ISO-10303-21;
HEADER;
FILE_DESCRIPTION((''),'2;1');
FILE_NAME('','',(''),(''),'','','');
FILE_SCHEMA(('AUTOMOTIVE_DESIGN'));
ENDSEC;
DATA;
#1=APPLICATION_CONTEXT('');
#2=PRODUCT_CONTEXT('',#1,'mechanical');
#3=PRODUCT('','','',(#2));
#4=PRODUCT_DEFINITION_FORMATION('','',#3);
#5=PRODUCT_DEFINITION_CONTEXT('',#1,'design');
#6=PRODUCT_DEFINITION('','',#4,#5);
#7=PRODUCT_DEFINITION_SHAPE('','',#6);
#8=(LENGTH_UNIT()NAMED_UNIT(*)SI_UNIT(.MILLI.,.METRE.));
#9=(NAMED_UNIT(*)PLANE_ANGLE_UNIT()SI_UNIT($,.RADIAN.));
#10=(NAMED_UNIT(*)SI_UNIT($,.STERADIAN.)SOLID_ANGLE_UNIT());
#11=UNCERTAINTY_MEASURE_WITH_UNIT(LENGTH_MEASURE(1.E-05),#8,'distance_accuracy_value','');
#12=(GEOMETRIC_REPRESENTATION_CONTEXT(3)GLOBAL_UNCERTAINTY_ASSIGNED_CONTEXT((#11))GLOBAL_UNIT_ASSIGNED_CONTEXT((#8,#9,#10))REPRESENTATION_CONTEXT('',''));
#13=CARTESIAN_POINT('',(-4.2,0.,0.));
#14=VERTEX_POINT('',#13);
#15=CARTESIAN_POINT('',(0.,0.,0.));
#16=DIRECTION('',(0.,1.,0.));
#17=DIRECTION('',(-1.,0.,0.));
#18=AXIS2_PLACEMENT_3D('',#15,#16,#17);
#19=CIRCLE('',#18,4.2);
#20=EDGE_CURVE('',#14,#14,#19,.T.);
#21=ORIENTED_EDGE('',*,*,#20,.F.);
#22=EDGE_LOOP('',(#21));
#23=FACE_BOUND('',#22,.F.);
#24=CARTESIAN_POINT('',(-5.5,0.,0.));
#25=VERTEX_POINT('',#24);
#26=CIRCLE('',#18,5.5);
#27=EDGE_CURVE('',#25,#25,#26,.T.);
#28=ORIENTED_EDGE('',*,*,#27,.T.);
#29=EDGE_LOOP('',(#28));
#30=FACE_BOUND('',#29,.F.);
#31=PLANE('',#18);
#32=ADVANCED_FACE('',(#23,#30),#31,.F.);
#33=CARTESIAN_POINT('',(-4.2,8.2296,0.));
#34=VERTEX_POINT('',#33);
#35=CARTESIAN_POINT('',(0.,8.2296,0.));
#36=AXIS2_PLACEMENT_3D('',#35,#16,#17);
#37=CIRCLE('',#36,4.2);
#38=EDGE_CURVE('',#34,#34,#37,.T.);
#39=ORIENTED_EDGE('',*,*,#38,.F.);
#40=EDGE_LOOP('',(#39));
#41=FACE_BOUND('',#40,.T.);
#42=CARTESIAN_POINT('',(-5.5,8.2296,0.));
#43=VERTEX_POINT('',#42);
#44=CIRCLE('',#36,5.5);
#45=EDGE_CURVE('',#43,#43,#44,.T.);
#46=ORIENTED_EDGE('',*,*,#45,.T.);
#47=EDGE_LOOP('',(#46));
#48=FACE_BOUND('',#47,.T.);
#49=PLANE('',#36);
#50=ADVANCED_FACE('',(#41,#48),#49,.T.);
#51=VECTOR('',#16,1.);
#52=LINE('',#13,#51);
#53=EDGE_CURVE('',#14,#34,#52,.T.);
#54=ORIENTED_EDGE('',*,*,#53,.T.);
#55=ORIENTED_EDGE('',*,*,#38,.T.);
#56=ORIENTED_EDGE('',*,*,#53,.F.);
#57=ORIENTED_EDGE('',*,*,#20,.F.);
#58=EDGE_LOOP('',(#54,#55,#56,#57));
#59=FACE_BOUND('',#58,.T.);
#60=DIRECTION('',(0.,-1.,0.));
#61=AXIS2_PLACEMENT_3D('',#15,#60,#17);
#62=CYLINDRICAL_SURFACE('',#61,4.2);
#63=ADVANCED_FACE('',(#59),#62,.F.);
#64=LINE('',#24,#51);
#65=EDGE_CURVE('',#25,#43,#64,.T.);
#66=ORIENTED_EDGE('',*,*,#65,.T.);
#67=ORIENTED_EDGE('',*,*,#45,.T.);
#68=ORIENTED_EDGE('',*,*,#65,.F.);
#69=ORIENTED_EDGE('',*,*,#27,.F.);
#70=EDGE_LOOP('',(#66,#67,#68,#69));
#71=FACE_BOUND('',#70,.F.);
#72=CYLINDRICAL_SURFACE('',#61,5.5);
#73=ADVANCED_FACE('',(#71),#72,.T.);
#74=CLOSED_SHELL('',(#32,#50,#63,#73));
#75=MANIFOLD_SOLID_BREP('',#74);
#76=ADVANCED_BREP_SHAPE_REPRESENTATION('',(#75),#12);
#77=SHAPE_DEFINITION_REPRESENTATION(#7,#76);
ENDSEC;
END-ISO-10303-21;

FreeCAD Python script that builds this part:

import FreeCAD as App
import Part
import Sketcher

V = App.Vector

doc = App.newDocument("Part")
params = doc.addObject("Spreadsheet::Sheet", "Params")
for row, (alias, value) in enumerate([
    ("sketch1_diameter", "11 mm"),
    ("sketch1_diameter2", "8.4 mm"),
    ("pad1_length", "8.2296 mm"),
], start=1):
    params.set(f"A{row}", alias)
    params.set(f"B{row}", "=" + value)
    params.setAlias(f"B{row}", alias)

body = doc.addObject("PartDesign::Body", "Body")

sketch1 = doc.addObject("Sketcher::SketchObject", "Sketch")
body.addObject(sketch1)
sketch1.AttachmentSupport = (doc.XZ_Plane, [""])
sketch1.MapMode = "FlatFace"
sketch1.addGeometry([
    Part.Circle(V(0, 0, 0), V(0, 0, 1), 5.5),
    Part.Circle(V(0, 0, 0), V(0, 0, 1), 4.2),
], False)
sketch1.addConstraint([
    Sketcher.Constraint("Coincident", 0, 3, -1, 1),
    Sketcher.Constraint("Coincident", 1, 3, -1, 1),
    Sketcher.Constraint("Diameter", 0, 11.0),
    Sketcher.Constraint("Diameter", 1, 8.4),
])
sketch1.setExpression("Constraints[2]", "Params.sketch1_diameter")
sketch1.setExpression("Constraints[3]", "Params.sketch1_diameter2")
pad1 = doc.addObject("PartDesign::Pad", "Pad")
body.addObject(pad1)
pad1.Profile = sketch1
pad1.setExpression("Length", "Params.pad1_length")
pad1.Reversed = True

doc.recompute()
